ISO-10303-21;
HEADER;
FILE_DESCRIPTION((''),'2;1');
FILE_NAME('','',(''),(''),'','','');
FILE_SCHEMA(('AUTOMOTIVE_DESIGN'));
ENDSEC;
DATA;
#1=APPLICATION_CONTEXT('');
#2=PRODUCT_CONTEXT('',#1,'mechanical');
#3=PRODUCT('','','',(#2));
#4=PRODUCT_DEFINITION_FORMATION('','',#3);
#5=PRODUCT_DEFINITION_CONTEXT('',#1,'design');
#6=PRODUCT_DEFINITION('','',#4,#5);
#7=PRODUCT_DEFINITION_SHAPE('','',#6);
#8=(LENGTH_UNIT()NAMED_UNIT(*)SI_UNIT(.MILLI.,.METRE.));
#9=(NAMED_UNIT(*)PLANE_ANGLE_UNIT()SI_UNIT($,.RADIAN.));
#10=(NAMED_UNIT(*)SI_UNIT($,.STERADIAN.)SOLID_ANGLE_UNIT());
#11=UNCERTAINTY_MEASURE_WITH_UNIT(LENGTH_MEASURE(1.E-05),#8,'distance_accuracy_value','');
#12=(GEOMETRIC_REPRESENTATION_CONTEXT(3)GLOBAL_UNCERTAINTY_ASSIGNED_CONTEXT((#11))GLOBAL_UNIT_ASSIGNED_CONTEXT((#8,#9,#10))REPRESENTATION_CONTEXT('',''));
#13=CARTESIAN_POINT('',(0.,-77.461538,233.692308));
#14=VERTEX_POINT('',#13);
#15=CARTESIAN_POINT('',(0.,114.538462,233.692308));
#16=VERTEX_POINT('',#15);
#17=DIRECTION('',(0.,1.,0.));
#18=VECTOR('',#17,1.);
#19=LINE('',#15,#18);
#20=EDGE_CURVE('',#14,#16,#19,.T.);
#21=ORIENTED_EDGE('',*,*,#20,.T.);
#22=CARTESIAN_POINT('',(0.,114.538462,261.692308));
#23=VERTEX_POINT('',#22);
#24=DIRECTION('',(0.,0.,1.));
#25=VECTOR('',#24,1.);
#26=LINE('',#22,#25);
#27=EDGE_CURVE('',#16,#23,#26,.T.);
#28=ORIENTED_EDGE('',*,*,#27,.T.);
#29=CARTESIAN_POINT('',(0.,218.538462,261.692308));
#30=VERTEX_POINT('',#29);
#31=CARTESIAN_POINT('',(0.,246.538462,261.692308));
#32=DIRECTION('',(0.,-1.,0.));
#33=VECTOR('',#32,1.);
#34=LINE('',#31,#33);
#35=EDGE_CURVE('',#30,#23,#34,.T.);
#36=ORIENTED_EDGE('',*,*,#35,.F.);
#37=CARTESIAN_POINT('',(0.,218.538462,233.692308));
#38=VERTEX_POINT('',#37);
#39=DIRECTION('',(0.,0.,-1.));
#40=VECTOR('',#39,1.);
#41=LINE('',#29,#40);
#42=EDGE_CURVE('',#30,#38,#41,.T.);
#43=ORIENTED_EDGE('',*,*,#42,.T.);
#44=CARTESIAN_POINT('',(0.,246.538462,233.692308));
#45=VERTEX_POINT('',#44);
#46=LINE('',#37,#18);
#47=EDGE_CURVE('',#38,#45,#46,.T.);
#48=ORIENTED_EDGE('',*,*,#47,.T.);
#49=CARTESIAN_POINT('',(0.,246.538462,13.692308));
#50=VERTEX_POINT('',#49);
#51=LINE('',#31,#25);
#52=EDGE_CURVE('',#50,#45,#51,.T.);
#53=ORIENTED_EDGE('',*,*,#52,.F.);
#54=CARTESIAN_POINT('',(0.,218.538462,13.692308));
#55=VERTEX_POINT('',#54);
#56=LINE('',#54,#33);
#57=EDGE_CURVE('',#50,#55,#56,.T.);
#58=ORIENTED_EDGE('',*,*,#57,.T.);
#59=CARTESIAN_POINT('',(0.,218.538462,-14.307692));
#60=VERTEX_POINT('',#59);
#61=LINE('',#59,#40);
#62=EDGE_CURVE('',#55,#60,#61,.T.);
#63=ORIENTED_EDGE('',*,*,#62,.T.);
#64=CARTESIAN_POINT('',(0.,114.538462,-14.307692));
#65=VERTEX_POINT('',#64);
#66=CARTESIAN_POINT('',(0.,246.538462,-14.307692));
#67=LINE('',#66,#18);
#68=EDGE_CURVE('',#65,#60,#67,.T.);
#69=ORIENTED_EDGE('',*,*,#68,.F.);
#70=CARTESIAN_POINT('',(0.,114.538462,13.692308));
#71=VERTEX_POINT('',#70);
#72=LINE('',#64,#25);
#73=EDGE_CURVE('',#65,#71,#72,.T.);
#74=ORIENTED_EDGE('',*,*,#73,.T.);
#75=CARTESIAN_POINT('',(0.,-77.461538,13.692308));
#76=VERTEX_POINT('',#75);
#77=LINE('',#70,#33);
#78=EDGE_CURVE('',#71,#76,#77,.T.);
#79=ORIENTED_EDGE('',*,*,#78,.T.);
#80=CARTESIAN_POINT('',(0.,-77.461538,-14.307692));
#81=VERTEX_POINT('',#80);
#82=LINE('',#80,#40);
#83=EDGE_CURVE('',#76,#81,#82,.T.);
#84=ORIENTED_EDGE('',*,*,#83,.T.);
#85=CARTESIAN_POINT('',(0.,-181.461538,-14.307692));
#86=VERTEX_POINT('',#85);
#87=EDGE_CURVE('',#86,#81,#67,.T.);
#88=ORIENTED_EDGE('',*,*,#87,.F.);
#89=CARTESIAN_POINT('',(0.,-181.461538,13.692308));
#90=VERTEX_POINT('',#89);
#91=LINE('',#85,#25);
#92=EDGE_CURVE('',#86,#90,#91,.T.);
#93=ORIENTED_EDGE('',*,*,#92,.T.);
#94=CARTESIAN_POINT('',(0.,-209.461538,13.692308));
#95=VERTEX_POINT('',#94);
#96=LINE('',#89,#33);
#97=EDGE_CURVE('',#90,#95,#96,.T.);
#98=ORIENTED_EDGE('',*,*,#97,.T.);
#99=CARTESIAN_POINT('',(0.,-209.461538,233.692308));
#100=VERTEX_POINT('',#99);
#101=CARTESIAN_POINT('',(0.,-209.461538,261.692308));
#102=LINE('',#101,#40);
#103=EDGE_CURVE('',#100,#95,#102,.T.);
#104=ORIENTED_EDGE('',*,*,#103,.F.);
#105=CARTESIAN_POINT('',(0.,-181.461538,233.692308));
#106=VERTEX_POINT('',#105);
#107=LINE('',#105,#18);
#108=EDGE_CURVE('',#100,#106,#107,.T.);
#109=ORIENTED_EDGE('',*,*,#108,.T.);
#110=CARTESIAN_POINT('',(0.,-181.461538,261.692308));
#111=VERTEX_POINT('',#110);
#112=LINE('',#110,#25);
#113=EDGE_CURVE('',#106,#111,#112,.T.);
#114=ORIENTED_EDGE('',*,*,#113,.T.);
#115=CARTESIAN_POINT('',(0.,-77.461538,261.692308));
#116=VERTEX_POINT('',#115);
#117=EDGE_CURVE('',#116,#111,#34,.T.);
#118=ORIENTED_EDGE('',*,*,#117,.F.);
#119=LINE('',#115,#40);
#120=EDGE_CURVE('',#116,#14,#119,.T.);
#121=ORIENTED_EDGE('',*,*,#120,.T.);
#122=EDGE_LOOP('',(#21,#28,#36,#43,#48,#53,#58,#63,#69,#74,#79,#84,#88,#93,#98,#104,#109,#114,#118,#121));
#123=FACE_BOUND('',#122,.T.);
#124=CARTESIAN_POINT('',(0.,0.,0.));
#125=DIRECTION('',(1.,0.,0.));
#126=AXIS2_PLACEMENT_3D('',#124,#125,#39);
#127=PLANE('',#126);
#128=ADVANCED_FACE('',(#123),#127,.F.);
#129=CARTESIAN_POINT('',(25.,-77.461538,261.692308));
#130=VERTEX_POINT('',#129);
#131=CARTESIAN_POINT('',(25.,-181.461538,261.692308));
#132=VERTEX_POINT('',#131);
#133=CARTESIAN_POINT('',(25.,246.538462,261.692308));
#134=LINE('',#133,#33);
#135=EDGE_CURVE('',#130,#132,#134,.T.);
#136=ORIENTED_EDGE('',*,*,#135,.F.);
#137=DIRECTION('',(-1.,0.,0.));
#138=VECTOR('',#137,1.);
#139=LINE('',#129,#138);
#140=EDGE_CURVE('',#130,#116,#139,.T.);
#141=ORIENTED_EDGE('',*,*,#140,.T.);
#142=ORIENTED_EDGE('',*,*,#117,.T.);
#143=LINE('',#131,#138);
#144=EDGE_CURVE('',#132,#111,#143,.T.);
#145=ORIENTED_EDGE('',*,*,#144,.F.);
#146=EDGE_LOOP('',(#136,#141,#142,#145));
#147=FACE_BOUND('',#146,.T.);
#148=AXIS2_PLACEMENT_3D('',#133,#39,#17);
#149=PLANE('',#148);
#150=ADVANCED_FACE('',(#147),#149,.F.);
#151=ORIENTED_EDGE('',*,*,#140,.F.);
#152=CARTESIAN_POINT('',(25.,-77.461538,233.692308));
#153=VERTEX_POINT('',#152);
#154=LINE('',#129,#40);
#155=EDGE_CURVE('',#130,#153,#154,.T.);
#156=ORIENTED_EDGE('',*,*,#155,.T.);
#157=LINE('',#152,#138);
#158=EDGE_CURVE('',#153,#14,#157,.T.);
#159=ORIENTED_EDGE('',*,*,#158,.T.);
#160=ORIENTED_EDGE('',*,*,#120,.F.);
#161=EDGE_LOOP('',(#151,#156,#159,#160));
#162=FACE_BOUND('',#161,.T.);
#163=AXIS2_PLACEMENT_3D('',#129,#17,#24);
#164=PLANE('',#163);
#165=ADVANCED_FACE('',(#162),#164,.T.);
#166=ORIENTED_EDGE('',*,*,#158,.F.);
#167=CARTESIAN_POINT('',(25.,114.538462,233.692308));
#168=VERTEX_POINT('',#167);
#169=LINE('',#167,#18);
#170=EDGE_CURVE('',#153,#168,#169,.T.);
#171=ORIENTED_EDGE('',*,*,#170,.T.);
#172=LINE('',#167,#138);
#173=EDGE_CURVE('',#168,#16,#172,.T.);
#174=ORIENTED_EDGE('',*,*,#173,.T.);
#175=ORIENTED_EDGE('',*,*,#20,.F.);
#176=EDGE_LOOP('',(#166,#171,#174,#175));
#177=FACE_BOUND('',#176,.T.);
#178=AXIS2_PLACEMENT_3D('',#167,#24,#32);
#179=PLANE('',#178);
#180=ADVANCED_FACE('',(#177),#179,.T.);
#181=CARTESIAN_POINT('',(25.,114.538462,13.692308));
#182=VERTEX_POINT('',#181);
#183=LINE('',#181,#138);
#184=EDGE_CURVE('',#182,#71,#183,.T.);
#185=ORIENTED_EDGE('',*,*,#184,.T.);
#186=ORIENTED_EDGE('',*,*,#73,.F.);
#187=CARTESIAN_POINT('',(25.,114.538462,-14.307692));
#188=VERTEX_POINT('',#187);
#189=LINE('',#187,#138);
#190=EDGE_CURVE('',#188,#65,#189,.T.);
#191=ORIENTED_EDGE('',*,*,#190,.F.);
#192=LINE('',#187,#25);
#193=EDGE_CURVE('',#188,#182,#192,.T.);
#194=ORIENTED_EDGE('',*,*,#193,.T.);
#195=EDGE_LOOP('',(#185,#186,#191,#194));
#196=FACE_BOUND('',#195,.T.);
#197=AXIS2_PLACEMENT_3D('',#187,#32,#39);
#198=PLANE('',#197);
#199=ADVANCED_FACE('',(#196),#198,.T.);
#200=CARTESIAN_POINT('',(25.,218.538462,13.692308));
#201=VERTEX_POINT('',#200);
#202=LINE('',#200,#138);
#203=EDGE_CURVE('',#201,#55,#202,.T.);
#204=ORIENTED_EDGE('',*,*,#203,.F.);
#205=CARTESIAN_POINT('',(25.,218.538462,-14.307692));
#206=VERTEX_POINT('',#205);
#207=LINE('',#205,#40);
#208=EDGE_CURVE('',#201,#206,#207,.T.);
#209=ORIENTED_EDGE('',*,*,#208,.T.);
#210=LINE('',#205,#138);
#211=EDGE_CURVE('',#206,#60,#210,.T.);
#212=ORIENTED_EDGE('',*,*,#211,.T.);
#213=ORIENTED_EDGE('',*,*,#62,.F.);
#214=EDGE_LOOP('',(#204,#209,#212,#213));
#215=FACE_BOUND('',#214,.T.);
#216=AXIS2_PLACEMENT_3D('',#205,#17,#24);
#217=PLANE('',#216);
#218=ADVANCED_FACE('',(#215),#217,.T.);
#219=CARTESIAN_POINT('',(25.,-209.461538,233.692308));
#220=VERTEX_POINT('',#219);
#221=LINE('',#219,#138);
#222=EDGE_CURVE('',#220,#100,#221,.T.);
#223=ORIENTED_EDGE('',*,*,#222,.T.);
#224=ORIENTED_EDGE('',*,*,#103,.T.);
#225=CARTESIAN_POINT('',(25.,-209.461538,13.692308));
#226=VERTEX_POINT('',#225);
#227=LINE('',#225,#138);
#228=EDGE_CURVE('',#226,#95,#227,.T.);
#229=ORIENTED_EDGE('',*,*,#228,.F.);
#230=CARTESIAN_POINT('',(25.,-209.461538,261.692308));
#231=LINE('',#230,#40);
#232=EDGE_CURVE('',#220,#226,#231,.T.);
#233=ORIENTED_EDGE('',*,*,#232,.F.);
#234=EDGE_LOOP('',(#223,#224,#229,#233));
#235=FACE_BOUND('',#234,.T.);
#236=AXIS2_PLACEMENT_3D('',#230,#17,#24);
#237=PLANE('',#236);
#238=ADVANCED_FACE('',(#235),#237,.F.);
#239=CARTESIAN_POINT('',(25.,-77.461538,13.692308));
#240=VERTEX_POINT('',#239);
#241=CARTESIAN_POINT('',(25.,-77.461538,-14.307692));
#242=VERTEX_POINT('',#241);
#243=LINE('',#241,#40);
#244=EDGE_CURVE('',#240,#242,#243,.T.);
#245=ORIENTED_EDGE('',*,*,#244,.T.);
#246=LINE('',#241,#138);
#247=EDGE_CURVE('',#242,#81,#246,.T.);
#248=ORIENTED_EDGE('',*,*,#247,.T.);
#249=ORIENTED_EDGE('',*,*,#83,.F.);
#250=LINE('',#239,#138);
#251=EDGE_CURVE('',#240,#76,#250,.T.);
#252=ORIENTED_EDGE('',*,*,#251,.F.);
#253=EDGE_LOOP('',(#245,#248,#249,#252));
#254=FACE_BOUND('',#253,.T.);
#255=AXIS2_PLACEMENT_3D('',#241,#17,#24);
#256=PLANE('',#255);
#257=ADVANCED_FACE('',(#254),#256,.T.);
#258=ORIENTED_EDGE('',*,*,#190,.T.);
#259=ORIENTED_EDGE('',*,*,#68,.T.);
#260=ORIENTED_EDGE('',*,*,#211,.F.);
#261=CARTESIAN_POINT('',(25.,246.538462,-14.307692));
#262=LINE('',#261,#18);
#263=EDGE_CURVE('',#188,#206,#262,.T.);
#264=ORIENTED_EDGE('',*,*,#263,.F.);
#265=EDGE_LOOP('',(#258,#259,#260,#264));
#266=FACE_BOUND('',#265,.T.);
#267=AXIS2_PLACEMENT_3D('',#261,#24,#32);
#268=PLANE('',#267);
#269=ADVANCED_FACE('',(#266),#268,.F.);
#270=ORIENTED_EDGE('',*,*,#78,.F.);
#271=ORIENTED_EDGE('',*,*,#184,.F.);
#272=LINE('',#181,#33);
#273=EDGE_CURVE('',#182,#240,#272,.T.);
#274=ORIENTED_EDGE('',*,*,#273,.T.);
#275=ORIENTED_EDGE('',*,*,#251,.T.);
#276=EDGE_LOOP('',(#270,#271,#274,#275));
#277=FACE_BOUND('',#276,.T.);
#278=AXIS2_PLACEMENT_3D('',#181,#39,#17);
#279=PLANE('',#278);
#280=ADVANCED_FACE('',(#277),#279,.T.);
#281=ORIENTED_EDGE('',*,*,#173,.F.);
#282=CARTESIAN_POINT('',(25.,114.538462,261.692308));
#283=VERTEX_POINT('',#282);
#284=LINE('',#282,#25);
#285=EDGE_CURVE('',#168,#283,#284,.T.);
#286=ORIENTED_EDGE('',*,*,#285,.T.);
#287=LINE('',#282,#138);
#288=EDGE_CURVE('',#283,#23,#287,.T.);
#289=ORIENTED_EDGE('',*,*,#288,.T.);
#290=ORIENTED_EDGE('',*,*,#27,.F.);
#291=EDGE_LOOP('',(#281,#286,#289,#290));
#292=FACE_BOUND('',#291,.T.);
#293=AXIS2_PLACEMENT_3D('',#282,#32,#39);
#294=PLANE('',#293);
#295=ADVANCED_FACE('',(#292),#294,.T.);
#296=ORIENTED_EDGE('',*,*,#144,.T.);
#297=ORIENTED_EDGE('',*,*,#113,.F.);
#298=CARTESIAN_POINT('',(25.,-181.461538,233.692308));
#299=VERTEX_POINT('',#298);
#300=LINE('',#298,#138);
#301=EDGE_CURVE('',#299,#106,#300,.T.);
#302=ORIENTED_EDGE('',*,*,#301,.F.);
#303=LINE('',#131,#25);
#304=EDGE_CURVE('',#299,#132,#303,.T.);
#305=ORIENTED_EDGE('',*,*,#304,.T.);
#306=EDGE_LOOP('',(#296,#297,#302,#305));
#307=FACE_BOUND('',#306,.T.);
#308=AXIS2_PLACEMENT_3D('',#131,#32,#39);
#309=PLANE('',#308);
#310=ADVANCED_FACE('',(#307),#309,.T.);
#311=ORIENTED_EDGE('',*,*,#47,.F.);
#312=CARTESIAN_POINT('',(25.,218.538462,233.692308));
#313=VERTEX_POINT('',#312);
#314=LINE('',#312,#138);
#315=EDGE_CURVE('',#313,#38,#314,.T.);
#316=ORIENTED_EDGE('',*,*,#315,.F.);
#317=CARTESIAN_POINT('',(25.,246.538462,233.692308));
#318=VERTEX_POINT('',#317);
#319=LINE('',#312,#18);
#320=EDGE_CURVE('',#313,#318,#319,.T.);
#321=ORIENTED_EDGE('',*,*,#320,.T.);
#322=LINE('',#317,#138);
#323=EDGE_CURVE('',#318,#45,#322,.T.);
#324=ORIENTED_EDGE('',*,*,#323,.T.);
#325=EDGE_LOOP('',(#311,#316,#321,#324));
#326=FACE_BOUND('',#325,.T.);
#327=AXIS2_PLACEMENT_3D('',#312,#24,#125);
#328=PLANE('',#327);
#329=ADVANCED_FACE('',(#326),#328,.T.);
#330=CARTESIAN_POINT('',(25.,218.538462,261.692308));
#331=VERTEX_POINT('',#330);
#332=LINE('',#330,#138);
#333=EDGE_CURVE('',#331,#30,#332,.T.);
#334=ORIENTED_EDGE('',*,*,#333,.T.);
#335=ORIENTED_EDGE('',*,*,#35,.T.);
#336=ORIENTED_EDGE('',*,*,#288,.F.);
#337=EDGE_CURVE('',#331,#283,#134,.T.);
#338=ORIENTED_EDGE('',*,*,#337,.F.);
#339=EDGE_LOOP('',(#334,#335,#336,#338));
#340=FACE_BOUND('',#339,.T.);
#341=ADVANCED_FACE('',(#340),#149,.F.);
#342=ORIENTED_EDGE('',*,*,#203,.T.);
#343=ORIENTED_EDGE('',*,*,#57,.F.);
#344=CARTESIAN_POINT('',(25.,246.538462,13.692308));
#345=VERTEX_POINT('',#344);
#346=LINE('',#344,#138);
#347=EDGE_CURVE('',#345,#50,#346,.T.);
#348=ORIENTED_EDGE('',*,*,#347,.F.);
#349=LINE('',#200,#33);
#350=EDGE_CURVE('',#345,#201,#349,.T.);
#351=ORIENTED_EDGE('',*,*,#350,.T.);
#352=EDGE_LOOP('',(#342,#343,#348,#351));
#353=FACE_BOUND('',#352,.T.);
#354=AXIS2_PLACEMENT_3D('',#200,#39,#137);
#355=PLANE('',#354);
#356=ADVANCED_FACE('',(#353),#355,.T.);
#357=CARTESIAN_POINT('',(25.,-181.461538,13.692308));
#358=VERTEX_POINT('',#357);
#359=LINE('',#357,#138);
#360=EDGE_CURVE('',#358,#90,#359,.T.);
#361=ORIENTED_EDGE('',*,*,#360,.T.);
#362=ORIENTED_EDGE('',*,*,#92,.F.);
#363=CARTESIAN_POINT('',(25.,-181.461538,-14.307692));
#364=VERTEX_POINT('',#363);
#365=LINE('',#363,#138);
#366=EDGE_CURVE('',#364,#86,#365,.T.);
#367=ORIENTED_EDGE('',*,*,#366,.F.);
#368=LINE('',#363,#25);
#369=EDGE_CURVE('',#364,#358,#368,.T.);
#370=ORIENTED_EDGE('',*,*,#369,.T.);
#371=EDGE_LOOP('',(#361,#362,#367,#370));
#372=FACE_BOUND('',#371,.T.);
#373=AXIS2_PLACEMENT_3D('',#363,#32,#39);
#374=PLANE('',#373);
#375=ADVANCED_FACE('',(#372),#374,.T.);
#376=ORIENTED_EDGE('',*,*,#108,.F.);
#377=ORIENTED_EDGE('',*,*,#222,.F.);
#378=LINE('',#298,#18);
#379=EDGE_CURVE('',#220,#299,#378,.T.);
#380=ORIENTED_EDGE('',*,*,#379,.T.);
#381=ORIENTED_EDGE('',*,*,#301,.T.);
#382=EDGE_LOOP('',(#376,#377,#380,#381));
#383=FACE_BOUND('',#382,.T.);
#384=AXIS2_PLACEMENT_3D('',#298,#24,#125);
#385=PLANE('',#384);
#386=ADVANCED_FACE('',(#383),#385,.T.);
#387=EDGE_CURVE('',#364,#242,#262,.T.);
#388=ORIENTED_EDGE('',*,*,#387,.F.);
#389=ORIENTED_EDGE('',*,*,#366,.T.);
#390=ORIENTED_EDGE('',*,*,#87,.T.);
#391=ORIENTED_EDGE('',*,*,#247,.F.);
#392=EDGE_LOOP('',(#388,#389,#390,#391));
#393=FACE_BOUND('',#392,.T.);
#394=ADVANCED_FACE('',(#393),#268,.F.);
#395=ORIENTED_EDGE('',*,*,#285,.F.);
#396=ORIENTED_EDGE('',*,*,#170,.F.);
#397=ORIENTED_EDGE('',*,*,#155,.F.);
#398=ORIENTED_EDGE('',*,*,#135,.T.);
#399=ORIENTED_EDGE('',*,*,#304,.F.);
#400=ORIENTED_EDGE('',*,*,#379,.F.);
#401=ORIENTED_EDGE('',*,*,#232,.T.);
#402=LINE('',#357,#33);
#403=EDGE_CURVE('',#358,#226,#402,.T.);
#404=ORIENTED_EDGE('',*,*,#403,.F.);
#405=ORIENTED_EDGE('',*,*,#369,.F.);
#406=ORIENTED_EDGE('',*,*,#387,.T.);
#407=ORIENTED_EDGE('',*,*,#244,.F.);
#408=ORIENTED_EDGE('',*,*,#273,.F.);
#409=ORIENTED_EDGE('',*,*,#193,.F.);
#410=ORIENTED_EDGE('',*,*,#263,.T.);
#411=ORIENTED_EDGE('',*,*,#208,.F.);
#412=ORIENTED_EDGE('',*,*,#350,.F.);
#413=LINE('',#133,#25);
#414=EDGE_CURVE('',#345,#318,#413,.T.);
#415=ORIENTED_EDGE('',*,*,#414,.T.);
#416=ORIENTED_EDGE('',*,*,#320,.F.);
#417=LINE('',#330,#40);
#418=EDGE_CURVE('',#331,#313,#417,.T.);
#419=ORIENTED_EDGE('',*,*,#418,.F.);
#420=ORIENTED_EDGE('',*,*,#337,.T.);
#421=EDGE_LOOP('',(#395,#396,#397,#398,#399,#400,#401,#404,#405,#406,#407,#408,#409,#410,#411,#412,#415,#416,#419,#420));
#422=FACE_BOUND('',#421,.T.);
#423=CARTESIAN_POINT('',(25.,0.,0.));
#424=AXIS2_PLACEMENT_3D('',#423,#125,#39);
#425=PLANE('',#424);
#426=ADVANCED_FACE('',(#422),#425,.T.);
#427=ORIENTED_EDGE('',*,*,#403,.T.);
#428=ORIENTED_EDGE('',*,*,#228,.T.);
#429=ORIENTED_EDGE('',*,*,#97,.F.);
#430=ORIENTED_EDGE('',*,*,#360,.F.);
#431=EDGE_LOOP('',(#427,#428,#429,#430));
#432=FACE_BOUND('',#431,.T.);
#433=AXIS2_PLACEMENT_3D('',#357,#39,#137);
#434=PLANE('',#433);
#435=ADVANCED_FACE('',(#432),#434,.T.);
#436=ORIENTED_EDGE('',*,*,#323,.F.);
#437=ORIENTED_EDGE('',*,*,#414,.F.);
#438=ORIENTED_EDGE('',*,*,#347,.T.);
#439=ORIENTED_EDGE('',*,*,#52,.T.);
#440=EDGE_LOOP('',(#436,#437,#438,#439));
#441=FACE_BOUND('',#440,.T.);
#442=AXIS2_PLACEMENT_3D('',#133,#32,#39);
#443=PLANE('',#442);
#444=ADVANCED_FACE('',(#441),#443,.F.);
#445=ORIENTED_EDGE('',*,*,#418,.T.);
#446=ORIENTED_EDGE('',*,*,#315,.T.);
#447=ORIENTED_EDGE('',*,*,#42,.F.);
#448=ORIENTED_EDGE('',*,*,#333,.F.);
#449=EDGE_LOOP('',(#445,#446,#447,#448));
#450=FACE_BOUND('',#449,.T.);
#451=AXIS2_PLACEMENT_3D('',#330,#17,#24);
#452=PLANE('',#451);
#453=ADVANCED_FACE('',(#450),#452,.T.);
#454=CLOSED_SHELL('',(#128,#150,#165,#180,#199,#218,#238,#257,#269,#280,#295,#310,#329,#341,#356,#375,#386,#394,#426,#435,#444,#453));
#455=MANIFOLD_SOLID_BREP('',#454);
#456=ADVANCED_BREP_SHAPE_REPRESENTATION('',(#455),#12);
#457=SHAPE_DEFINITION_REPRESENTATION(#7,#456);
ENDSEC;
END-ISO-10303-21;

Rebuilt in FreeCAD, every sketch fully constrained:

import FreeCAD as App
import Part
import Sketcher
from FreeCAD import Vector
Q = App.Units.Quantity


def add_polygon(sketch, points):
    """Adds a closed chain of lines whose ends are joined by coincident constraints."""
    first, n = sketch.GeometryCount, len(points)
    for a, b in zip(points, points[1:] + points[:1]):
        sketch.addGeometry(Part.LineSegment(App.Vector(*a, 0), App.Vector(*b, 0)), False)
    for i in range(n):
        sketch.addConstraint(Sketcher.Constraint("Coincident", first + i, 2, first + (i + 1) % n, 1))

doc = App.newDocument("Part")
body = doc.addObject("PartDesign::Body", "Body")

# Sketch on YZ plane
sketch1 = doc.addObject("Sketcher::SketchObject", "Sketch")
body.addObject(sketch1)
sketch1.AttachmentSupport = (doc.YZ_Plane, [""])
sketch1.MapMode = "FlatFace"
add_polygon(sketch1, [(247, 262), (-209, 262), (-209, -14), (247, -14)])  # lines 0-3
sketch1.addConstraint([
    Sketcher.Constraint("Horizontal", 0),
    Sketcher.Constraint("Vertical", 1),
    Sketcher.Constraint("Horizontal", 2),
    Sketcher.Constraint("Vertical", 3),
    Sketcher.Constraint("DistanceX", 0, 2, 0, 1, Q("456 mm")),
    Sketcher.Constraint("DistanceY", 1, 2, 1, 1, Q("276 mm")),
    Sketcher.Constraint("DistanceX", 0, 2, -1, 1, Q("209.461538 mm")),
    Sketcher.Constraint("DistanceY", -1, 1, 0, 2, Q("261.692308 mm")),
])
pad1 = doc.addObject("PartDesign::Pad", "Pad")
body.addObject(pad1)
pad1.Profile = sketch1
pad1.Length = 25

# Sketch on YZ plane
sketch2 = doc.addObject("Sketcher::SketchObject", "Sketch001")
body.addObject(sketch2)
sketch2.AttachmentSupport = (doc.YZ_Plane, [""])
sketch2.MapMode = "FlatFace"
add_polygon(sketch2, [(-181, 14), (-209, 14), (-209, -14), (-181, -14)])  # lines 0-3
add_polygon(sketch2, [(-181, 262), (-209, 262), (-209, 234), (-181, 234)])  # lines 4-7
add_polygon(sketch2, [(247, 14), (219, 14), (219, -14), (247, -14)])  # lines 8-11
add_polygon(sketch2, [(247, 262), (219, 262), (219, 234), (247, 234)])  # lines 12-15
add_polygon(sketch2, [(115, 14), (-77, 14), (-77, -14), (115, -14)])  # lines 16-19
add_polygon(sketch2, [(115, 262), (-77, 262), (-77, 234), (115, 234)])  # lines 20-23
sketch2.addConstraint([
    Sketcher.Constraint("Horizontal", 0),
    Sketcher.Constraint("Vertical", 1),
    Sketcher.Constraint("Horizontal", 2),
    Sketcher.Constraint("Vertical", 3),
    Sketcher.Constraint("Horizontal", 4),
    Sketcher.Constraint("Vertical", 5),
    Sketcher.Constraint("Horizontal", 6),
    Sketcher.Constraint("Vertical", 7),
    Sketcher.Constraint("Horizontal", 8),
    Sketcher.Constraint("Vertical", 9),
    Sketcher.Constraint("Horizontal", 10),
    Sketcher.Constraint("Vertical", 11),
    Sketcher.Constraint("Horizontal", 12),
    Sketcher.Constraint("Vertical", 13),
    Sketcher.Constraint("Horizontal", 14),
    Sketcher.Constraint("Vertical", 15),
    Sketcher.Constraint("Horizontal", 16),
    Sketcher.Constraint("Vertical", 17),
    Sketcher.Constraint("Horizontal", 18),
    Sketcher.Constraint("Vertical", 19),
    Sketcher.Constraint("Horizontal", 20),
    Sketcher.Constraint("Vertical", 21),
    Sketcher.Constraint("Horizontal", 22),
    Sketcher.Constraint("Vertical", 23),
    Sketcher.Constraint("Horizontal", 3, 2, 8, 2),
    Sketcher.Constraint("Horizontal", 2, 2, 9, 2),
    Sketcher.Constraint("Horizontal", 7, 2, 12, 2),
    Sketcher.Constraint("Horizontal", 6, 2, 13, 2),
    Sketcher.Constraint("Horizontal", 11, 2, 16, 2),
    Sketcher.Constraint("Horizontal", 10, 2, 17, 2),
    Sketcher.Constraint("Horizontal", 15, 2, 20, 2),
    Sketcher.Constraint("Horizontal", 14, 2, 21, 2),
    Sketcher.Constraint("Vertical", 1, 2, 4, 2),
    Sketcher.Constraint("Vertical", 3, 2, 6, 2),
    Sketcher.Constraint("Vertical", 9, 2, 12, 2),
    Sketcher.Constraint("Vertical", 11, 2, 14, 2),
    Sketcher.Constraint("Vertical", 17, 2, 20, 2),
    Sketcher.Constraint("Vertical", 19, 2, 22, 2),
    Sketcher.Constraint("Equal", 6, 8),
    Sketcher.Constraint("Equal", 14, 1),
    Sketcher.Constraint("Equal", 3, 5),
    Sketcher.Constraint("DistanceX", 0, 2, 0, 1, Q("28 mm")),
    Sketcher.Constraint("DistanceX", 16, 2, 16, 1, Q("192 mm")),
    Sketcher.Constraint("DistanceY", 0, 2, 4, 2, Q("248 mm")),
    Sketcher.Constraint("DistanceX", 3, 2, 8, 2, Q("400 mm")),
    Sketcher.Constraint("DistanceX", 3, 2, 16, 2, Q("104 mm")),
    Sketcher.Constraint("DistanceX", 0, 2, -1, 1, Q("209.461538 mm")),
    Sketcher.Constraint("DistanceY", -1, 1, 0, 2, Q("13.692308 mm")),
])
pocket1 = doc.addObject("PartDesign::Pocket", "Pocket")
body.addObject(pocket1)
pocket1.Profile = sketch2
pocket1.Length = 25
pocket1.Reversed = True

doc.recompute()
